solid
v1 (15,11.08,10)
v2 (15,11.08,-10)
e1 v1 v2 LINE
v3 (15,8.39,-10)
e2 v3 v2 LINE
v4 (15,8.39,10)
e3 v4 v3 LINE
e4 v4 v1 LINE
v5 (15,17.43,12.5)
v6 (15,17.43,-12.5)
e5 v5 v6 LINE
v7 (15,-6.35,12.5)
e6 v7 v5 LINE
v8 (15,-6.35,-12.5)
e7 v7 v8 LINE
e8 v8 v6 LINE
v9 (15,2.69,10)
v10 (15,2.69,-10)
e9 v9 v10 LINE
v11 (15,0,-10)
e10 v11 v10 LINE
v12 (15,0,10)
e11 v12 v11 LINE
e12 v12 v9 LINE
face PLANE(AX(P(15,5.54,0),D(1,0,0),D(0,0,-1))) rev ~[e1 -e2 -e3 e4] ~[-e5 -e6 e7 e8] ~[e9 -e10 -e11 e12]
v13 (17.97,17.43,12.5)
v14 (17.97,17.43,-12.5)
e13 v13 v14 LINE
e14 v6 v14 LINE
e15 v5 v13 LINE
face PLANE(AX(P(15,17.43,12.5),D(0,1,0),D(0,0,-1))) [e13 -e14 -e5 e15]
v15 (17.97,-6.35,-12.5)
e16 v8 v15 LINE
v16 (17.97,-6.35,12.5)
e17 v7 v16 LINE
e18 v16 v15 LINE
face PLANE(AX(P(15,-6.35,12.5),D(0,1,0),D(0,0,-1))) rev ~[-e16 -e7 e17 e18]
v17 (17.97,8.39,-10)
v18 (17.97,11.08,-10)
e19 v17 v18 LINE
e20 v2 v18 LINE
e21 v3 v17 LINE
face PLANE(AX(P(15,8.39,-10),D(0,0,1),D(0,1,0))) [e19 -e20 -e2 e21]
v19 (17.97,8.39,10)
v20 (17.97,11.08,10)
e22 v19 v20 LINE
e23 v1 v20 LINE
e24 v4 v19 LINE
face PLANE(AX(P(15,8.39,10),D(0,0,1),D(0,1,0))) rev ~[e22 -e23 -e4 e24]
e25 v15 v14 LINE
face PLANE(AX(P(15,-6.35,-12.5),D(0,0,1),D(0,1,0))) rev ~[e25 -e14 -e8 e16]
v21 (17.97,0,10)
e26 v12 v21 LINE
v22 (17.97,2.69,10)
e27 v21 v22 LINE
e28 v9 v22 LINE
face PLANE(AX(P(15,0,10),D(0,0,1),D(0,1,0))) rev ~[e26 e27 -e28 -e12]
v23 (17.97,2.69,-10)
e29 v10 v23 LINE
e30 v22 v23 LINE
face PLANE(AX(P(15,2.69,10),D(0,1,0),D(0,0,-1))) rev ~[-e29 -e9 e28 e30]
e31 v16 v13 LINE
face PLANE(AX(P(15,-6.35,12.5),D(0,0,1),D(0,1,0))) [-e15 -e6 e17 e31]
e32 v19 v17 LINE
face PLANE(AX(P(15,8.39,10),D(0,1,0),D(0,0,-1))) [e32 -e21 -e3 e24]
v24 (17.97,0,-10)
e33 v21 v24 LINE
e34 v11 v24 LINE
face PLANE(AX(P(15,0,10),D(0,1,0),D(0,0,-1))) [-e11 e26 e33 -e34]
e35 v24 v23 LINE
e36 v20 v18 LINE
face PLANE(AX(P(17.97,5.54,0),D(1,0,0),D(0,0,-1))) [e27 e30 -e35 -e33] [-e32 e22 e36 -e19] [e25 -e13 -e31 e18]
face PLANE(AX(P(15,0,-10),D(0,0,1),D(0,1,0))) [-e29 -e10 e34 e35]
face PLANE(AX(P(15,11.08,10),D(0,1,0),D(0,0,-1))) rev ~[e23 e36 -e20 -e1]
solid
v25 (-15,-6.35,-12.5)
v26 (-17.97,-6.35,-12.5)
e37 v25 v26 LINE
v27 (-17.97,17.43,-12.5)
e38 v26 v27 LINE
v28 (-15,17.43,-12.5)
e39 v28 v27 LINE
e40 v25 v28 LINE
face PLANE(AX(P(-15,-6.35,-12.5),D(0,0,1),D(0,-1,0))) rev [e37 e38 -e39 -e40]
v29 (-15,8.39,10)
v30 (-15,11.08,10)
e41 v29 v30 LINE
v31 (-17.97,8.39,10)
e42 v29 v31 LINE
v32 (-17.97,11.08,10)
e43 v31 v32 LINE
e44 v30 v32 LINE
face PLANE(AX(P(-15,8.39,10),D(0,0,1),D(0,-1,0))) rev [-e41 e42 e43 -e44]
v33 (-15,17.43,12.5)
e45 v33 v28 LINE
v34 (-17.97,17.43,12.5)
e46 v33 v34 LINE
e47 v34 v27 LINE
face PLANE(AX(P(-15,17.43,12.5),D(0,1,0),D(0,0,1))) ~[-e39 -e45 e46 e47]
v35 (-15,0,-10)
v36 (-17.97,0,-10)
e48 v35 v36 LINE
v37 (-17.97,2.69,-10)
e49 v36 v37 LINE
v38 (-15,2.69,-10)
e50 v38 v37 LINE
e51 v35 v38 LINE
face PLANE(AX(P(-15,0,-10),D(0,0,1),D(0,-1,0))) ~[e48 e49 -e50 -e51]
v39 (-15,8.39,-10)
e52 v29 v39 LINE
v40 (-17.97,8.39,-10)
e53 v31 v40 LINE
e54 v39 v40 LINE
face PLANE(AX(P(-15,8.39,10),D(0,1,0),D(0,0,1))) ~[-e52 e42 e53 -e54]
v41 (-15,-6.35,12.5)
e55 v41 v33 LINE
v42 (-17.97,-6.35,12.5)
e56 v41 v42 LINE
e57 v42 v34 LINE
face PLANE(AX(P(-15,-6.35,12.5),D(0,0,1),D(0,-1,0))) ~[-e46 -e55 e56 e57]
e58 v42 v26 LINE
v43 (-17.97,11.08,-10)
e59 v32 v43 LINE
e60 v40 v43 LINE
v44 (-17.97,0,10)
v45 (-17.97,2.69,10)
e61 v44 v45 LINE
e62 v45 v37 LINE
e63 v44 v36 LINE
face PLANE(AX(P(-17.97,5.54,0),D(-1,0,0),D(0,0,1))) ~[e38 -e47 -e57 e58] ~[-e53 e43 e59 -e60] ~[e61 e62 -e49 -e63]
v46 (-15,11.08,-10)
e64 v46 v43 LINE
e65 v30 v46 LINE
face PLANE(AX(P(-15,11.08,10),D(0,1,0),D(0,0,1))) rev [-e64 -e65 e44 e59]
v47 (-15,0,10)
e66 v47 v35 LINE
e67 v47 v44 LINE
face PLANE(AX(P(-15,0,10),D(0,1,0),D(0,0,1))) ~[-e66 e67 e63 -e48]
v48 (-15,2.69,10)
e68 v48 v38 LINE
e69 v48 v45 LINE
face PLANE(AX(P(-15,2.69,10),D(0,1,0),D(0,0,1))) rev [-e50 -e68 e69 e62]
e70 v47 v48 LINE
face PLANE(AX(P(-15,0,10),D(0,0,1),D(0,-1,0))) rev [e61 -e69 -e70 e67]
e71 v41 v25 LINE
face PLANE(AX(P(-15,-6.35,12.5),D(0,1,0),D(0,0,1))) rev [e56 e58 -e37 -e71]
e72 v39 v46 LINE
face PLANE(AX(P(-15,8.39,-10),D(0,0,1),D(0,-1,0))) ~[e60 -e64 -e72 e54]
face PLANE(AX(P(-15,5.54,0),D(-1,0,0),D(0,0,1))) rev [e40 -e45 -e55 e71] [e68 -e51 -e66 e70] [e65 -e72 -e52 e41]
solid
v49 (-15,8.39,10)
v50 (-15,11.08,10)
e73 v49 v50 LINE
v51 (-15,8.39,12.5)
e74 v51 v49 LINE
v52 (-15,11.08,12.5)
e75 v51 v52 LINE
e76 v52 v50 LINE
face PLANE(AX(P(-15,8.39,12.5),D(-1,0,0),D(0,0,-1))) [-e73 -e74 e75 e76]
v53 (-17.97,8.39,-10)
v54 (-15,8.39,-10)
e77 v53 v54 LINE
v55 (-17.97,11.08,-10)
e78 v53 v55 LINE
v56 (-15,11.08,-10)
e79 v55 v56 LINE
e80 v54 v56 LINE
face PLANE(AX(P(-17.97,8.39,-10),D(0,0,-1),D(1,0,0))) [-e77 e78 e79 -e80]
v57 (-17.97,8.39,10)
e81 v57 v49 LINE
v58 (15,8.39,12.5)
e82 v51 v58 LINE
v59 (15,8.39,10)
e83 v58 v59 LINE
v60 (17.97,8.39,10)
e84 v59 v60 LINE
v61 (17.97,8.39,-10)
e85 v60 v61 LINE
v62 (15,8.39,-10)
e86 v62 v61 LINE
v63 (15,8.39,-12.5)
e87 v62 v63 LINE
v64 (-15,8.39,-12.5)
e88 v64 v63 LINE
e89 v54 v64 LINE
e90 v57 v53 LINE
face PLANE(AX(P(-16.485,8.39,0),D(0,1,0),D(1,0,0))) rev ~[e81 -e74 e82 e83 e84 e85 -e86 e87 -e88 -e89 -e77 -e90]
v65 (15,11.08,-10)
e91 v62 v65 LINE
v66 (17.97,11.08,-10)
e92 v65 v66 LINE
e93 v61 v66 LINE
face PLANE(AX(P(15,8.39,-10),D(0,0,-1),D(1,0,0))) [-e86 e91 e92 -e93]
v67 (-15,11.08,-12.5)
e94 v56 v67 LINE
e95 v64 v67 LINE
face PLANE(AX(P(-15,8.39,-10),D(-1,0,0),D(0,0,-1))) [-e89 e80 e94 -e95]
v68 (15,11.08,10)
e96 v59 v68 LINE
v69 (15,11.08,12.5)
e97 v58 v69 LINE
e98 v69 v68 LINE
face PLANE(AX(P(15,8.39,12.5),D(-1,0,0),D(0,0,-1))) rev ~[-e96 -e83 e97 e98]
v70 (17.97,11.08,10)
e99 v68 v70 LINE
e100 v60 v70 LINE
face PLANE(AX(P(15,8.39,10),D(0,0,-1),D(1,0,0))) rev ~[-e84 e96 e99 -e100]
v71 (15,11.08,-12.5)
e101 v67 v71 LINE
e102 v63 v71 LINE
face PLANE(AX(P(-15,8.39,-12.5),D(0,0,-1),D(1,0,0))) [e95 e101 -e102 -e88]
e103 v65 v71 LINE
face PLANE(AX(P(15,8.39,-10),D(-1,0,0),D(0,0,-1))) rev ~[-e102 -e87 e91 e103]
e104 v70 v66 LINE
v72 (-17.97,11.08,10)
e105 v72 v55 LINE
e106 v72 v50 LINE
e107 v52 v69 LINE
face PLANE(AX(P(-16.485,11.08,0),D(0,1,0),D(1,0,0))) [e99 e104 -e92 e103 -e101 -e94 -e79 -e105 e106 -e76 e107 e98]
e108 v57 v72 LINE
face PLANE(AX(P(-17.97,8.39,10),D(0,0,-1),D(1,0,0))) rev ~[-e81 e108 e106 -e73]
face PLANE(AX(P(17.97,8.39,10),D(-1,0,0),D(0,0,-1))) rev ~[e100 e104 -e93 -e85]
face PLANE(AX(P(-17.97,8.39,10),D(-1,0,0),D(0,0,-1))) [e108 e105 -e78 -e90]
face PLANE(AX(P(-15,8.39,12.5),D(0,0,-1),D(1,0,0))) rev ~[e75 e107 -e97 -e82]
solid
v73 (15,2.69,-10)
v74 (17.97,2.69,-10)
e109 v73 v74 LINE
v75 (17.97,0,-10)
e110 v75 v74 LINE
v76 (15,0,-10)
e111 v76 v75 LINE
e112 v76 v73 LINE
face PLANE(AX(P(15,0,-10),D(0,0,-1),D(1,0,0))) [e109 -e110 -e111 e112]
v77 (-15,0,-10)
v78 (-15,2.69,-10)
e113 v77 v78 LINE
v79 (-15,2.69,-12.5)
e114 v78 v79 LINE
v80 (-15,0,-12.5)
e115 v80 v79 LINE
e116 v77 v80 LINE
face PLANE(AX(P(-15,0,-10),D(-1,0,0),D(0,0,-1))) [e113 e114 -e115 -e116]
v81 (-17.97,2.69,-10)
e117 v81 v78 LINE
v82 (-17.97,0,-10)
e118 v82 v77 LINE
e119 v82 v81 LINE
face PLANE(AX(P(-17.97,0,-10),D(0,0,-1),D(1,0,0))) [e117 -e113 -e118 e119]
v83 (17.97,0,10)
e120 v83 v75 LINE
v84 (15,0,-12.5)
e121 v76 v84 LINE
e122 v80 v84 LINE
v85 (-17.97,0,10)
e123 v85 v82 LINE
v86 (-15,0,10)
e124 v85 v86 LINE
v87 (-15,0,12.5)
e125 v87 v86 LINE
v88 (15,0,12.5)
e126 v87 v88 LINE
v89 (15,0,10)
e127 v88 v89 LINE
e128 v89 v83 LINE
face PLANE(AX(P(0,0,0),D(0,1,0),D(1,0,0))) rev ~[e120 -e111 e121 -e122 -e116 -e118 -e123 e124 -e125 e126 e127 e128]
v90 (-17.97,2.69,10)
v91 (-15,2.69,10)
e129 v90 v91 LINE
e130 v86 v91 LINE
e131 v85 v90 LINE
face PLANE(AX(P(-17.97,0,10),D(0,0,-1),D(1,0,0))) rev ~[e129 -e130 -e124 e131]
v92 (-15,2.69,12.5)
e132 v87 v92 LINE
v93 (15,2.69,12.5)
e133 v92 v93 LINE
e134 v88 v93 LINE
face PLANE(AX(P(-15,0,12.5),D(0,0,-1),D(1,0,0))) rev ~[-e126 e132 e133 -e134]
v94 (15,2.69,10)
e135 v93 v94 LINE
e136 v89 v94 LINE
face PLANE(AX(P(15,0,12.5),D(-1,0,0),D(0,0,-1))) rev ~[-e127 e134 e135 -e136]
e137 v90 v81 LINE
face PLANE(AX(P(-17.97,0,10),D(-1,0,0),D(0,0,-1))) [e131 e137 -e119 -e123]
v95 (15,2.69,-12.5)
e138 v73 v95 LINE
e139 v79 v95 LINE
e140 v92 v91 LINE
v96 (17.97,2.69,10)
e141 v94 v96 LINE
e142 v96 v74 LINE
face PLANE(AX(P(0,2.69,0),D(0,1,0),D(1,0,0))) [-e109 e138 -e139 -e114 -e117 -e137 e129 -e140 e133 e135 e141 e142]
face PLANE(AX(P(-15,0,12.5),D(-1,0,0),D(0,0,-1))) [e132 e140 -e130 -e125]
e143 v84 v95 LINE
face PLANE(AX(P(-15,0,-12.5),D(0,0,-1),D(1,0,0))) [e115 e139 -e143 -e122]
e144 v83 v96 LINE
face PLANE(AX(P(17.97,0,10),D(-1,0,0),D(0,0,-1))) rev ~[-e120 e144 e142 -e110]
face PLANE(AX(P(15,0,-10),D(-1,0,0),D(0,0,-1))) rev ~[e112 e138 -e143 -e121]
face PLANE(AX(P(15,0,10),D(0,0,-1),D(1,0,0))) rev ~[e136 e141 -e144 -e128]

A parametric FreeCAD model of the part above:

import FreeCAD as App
import Part
import Sketcher
Q = App.Units.Quantity


def add_polygon(sketch, points):
    """Adds a closed chain of lines whose ends are joined by coincident constraints."""
    first, n = sketch.GeometryCount, len(points)
    for a, b in zip(points, points[1:] + points[:1]):
        sketch.addGeometry(Part.LineSegment(App.Vector(*a, 0), App.Vector(*b, 0)), False)
    for i in range(n):
        sketch.addConstraint(Sketcher.Constraint("Coincident", first + i, 2, first + (i + 1) % n, 1))

doc = App.newDocument("Part")
body = doc.addObject("PartDesign::Body", "Body")

sketch1 = body.newObject("Sketcher::SketchObject", "Sketch")
sketch1.AttachmentSupport = (doc.getObject("XZ_Plane"), [""])
sketch1.MapMode = "FlatFace"
add_polygon(sketch1, [(-15, 10), (-15, 12.5), (15, 12.5), (15, 10), (17.97, 10), (17.97, -10), (15, -10), (15, -12.5), (-15, -12.5), (-15, -10), (-17.97, -10), (-17.97, 10)])
sketch1.addConstraint([
    Sketcher.Constraint("Vertical", 0),
    Sketcher.Constraint("Horizontal", 1),
    Sketcher.Constraint("Vertical", 2),
    Sketcher.Constraint("Horizontal", 3),
    Sketcher.Constraint("Vertical", 4),
    Sketcher.Constraint("Horizontal", 5),
    Sketcher.Constraint("Vertical", 6),
    Sketcher.Constraint("Horizontal", 7),
    Sketcher.Constraint("Vertical", 8),
    Sketcher.Constraint("Horizontal", 9),
    Sketcher.Constraint("Vertical", 10),
    Sketcher.Constraint("Horizontal", 11),
    Sketcher.Constraint("Symmetric", 0, 2, 6, 2, -1, 1),
    Sketcher.Constraint("Symmetric", 2, 2, 8, 2, -1, 1),
    Sketcher.Constraint("Symmetric", 4, 2, 10, 2, -1, 1),
    Sketcher.Constraint("Symmetric", 5, 2, 8, 2, -2),
    Sketcher.Constraint("DistanceX", 1, 1, 1, 2, Q("30 mm")),
    Sketcher.Constraint("DistanceY", 4, 2, 4, 1, Q("20 mm")),
    Sketcher.Constraint("DistanceY", 0, 1, 0, 2, Q("2.5 mm")),
    Sketcher.Constraint("DistanceX", 3, 1, 3, 2, Q("2.97 mm")),
])
pad1 = body.newObject("PartDesign::Pad", "Pad")
pad1.Profile = sketch1
pad1.Length = 2.69
pad1.Reversed = True
body2 = doc.addObject("PartDesign::Body", "Body001")

sketch2 = body2.newObject("Sketcher::SketchObject", "Sketch001")
sketch2.AttachmentSupport = (doc.getObject("XZ_Plane001"), [""])
sketch2.MapMode = "FlatFace"
sketch2.AttachmentOffset = App.Placement(App.Vector(0, 0, -8.39), App.Rotation())
add_polygon(sketch2, [(-17.97, -10), (-17.97, 10), (-15, 10), (-15, 12.5), (15, 12.5), (15, 10), (17.97, 10), (17.97, -10), (15, -10), (15, -12.5), (-15, -12.5), (-15, -10)])
sketch2.addConstraint([
    Sketcher.Constraint("Vertical", 0),
    Sketcher.Constraint("Horizontal", 1),
    Sketcher.Constraint("Vertical", 2),
    Sketcher.Constraint("Horizontal", 3),
    Sketcher.Constraint("Vertical", 4),
    Sketcher.Constraint("Horizontal", 5),
    Sketcher.Constraint("Vertical", 6),
    Sketcher.Constraint("Horizontal", 7),
    Sketcher.Constraint("Vertical", 8),
    Sketcher.Constraint("Horizontal", 9),
    Sketcher.Constraint("Vertical", 10),
    Sketcher.Constraint("Horizontal", 11),
    Sketcher.Constraint("Symmetric", 0, 2, 6, 2, -1, 1),
    Sketcher.Constraint("Symmetric", 2, 2, 8, 2, -1, 1),
    Sketcher.Constraint("Symmetric", 4, 2, 10, 2, -1, 1),
    Sketcher.Constraint("Symmetric", 1, 2, 4, 2, -2),
    Sketcher.Constraint("DistanceX", 3, 1, 3, 2, Q("30 mm")),
    Sketcher.Constraint("DistanceY", 0, 1, 0, 2, Q("20 mm")),
    Sketcher.Constraint("DistanceY", 2, 1, 2, 2, Q("2.5 mm")),
    Sketcher.Constraint("DistanceX", 1, 1, 1, 2, Q("2.97 mm")),
])
pad2 = body2.newObject("PartDesign::Pad", "Pad001")
pad2.Profile = sketch2
pad2.Length = 2.69
pad2.Reversed = True
body3 = doc.addObject("PartDesign::Body", "Body002")

sketch3 = body3.newObject("Sketcher::SketchObject", "Sketch002")
sketch3.AttachmentSupport = (doc.getObject("YZ_Plane002"), [""])
sketch3.MapMode = "FlatFace"
sketch3.AttachmentOffset = App.Placement(App.Vector(0, 0, 15), App.Rotation())
add_polygon(sketch3, [(17.43, 12.5), (-6.35, 12.5), (-6.35, -12.5), (17.43, -12.5)])
add_polygon(sketch3, [(0, -10), (0, 10), (2.69, 10), (2.69, -10)])
add_polygon(sketch3, [(8.39, -10), (8.39, 10), (11.08, 10), (11.08, -10)])
sketch3.addConstraint([
    Sketcher.Constraint("Horizontal", 0),
    Sketcher.Constraint("Vertical", 1),
    Sketcher.Constraint("Horizontal", 2),
    Sketcher.Constraint("Vertical", 3),
    Sketcher.Constraint("Vertical", 4),
    Sketcher.Constraint("Horizontal", 5),
    Sketcher.Constraint("Vertical", 6),
    Sketcher.Constraint("Horizontal", 7),
    Sketcher.Constraint("Vertical", 8),
    Sketcher.Constraint("Horizontal", 9),
    Sketcher.Constraint("Vertical", 10),
    Sketcher.Constraint("Horizontal", 11),
    Sketcher.Constraint("Symmetric", 4, 2, 7, 2, -1, 1),
    Sketcher.Constraint("Horizontal", 5, 2, 8, 2),
    Sketcher.Constraint("Horizontal", 7, 2, 10, 2),
    Sketcher.Constraint("Equal", 7, 9),
    Sketcher.Constraint("DistanceY", 1, 2, 1, 1, Q("25 mm")),
    Sketcher.Constraint("DistanceY", 4, 1, 4, 2, Q("20 mm")),
    Sketcher.Constraint("DistanceX", 0, 2, 0, 1, Q("23.78 mm")),
    Sketcher.Constraint("DistanceX", 5, 1, 5, 2, Q("2.69 mm")),
    Sketcher.Constraint("DistanceY", -1, 1, 0, 2, Q("12.5 mm")),
    Sketcher.Constraint("DistanceX", 5, 2, 8, 2, Q("5.7 mm")),
    Sketcher.Constraint("DistanceX", 0, 2, -1, 1, Q("6.35 mm")),
])
pad3 = body3.newObject("PartDesign::Pad", "Pad002")
pad3.Profile = sketch3
pad3.Length = 2.97
body4 = doc.addObject("PartDesign::Body", "Body003")
doc.recompute()

mirroring = doc.addObject("Part::Mirroring", "Mirroring")
mirroring.Source = body3
mirroring.Base = App.Vector(0, 0, 0)
mirroring.Normal = App.Vector(1, 0, 0)
body4.BaseFeature = mirroring
doc.recompute()
mirroring.Visibility = False

doc.recompute()
